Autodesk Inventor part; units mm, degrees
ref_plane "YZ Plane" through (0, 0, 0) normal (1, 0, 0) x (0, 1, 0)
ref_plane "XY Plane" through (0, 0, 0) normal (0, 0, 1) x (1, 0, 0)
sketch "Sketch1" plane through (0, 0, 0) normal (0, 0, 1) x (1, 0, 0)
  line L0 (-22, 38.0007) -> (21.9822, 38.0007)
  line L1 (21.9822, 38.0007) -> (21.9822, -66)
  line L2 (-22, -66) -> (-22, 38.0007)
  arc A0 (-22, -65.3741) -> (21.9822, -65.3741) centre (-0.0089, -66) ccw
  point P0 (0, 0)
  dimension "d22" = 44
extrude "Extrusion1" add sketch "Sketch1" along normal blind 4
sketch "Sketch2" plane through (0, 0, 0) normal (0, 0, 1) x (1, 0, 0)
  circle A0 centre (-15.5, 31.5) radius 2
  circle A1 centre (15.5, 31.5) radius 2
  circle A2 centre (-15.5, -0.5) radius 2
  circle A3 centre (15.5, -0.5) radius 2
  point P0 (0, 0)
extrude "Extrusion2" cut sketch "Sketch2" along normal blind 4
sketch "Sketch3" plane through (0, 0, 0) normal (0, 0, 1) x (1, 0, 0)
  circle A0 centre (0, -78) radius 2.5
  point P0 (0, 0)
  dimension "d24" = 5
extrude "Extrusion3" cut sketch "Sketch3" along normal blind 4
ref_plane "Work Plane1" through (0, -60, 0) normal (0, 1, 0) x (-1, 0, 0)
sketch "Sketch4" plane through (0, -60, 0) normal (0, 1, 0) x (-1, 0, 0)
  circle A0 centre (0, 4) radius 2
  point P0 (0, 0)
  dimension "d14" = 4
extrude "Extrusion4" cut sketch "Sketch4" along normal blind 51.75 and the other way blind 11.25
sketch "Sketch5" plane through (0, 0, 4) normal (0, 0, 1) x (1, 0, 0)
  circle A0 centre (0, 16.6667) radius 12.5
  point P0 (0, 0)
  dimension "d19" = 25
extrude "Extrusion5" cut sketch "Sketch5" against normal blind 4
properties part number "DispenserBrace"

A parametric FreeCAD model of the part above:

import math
import FreeCAD as App
import Part
import Sketcher

V = App.Vector
Q = App.Units.Quantity

doc = App.newDocument("Part")
body = doc.addObject("PartDesign::Body", "Body")

# Sketch on XY plane
sketch1 = body.newObject("Sketcher::SketchObject", "Sketch")
sketch1.AttachmentSupport = (doc.getObject("XY_Plane"), [""])
sketch1.MapMode = "FlatFace"
sketch1.addGeometry([
    Part.LineSegment(V(22, 38, 0), V(-22, 38, 0)),
    Part.LineSegment(V(-22, 38, 0), V(-22, -65, 0)),
    Part.ArcOfCircle(Part.Circle(V(0, -66, 0), V(0, 0, 1), 22), math.radians(178), math.radians(362)),
    Part.LineSegment(V(22, -65, 0), V(22, 38, 0)),
], False)
sketch1.addConstraint([
    Sketcher.Constraint("Coincident", 0, 2, 1, 1),
    Sketcher.Constraint("Coincident", 1, 2, 2, 1),
    Sketcher.Constraint("Coincident", 2, 2, 3, 1),
    Sketcher.Constraint("Coincident", 3, 2, 0, 1),
    Sketcher.Constraint("Horizontal", 0),
    Sketcher.Constraint("Vertical", 1),
    Sketcher.Constraint("Vertical", 3),
    Sketcher.Constraint("Horizontal", 1, 2, 2, 2),
    Sketcher.Constraint("Radius", 2, Q("22 mm")),
    Sketcher.Constraint("DistanceY", 2, 3, -1, 1, Q("66 mm")),
    Sketcher.Constraint("DistanceX", 0, 2, -1, 1, Q("22 mm")),
    Sketcher.Constraint("DistanceX", 0, 2, 0, 1, Q("43.9822 mm")),
    Sketcher.Constraint("DistanceY", 1, 2, 1, 1, Q("103.3748 mm")),
])
pad1 = body.newObject("PartDesign::Pad", "Pad")
pad1.Profile = sketch1
pad1.Length = 4

# Sketch on XY plane
sketch2 = body.newObject("Sketcher::SketchObject", "Sketch001")
sketch2.AttachmentSupport = (doc.getObject("XY_Plane"), [""])
sketch2.MapMode = "FlatFace"
sketch2.addGeometry([
    Part.Circle(V(-15.5, 31.5, 0), V(0, 0, 1), 2),
    Part.Circle(V(15.5, 31.5, 0), V(0, 0, 1), 2),
    Part.Circle(V(-15.5, -0.5, 0), V(0, 0, 1), 2),
    Part.Circle(V(15.5, -0.5, 0), V(0, 0, 1), 2),
], False)
sketch2.addConstraint([
    Sketcher.Constraint("Equal", 0, 1),
    Sketcher.Constraint("Equal", 1, 2),
    Sketcher.Constraint("Equal", 2, 3),
    Sketcher.Constraint("Symmetric", 0, 3, 1, 3, -2),
    Sketcher.Constraint("Symmetric", 2, 3, 3, 3, -2),
    Sketcher.Constraint("Vertical", 0, 3, 2, 3),
    Sketcher.Constraint("Diameter", 0, Q("4 mm")),
    Sketcher.Constraint("DistanceX", 0, 3, 1, 3, Q("31 mm")),
    Sketcher.Constraint("DistanceY", 2, 3, 0, 3, Q("32 mm")),
    Sketcher.Constraint("DistanceY", -1, 1, 0, 3, Q("31.5 mm")),
])
pocket1 = body.newObject("PartDesign::Pocket", "Pocket")
pocket1.Profile = sketch2
pocket1.Length = 4
pocket1.Reversed = True

# Sketch on XY plane
sketch3 = body.newObject("Sketcher::SketchObject", "Sketch002")
sketch3.AttachmentSupport = (doc.getObject("XY_Plane"), [""])
sketch3.MapMode = "FlatFace"
sketch3.addGeometry(Part.Circle(V(0, -78, 0), V(0, 0, 1), 2.5), False)
sketch3.addConstraint([
    Sketcher.Constraint("PointOnObject", 0, 3, -2),
    Sketcher.Constraint("Diameter", 0, Q("5 mm")),
    Sketcher.Constraint("DistanceY", 0, 3, -1, 1, Q("78 mm")),
])
pocket2 = body.newObject("PartDesign::Pocket", "Pocket001")
pocket2.Profile = sketch3
pocket2.Length = 4
pocket2.Reversed = True

# Sketch on XZ plane
sketch4 = body.newObject("Sketcher::SketchObject", "Sketch003")
sketch4.AttachmentSupport = (doc.getObject("XZ_Plane"), [""])
sketch4.MapMode = "FlatFace"
sketch4.AttachmentOffset = App.Placement(V(0, 0, 60), App.Rotation())
sketch4.addGeometry(Part.Circle(V(0, 4, 0), V(0, 0, 1), 2), False)
sketch4.addConstraint([
    Sketcher.Constraint("PointOnObject", 0, 3, -2),
    Sketcher.Constraint("Diameter", 0, Q("4 mm")),
    Sketcher.Constraint("DistanceY", -1, 1, 0, 3, Q("4 mm")),
])
pocket3 = body.newObject("PartDesign::Pocket", "Pocket002")
pocket3.Profile = sketch4
pocket3.Type = "TwoLengths"
pocket3.Length = 51.75
pocket3.Length2 = 11.25

# Sketch on XY plane
sketch5 = body.newObject("Sketcher::SketchObject", "Sketch004")
sketch5.AttachmentSupport = (doc.getObject("XY_Plane"), [""])
sketch5.MapMode = "FlatFace"
sketch5.AttachmentOffset = App.Placement(V(0, 0, 4), App.Rotation())
sketch5.addGeometry(Part.Circle(V(0, 17, 0), V(0, 0, 1), 12), False)
sketch5.addConstraint([
    Sketcher.Constraint("PointOnObject", 0, 3, -2),
    Sketcher.Constraint("Diameter", 0, Q("25 mm")),
    Sketcher.Constraint("DistanceY", -1, 1, 0, 3, Q("16.6667 mm")),
])
pocket4 = body.newObject("PartDesign::Pocket", "Pocket003")
pocket4.Profile = sketch5
pocket4.Length = 4

doc.recompute()
